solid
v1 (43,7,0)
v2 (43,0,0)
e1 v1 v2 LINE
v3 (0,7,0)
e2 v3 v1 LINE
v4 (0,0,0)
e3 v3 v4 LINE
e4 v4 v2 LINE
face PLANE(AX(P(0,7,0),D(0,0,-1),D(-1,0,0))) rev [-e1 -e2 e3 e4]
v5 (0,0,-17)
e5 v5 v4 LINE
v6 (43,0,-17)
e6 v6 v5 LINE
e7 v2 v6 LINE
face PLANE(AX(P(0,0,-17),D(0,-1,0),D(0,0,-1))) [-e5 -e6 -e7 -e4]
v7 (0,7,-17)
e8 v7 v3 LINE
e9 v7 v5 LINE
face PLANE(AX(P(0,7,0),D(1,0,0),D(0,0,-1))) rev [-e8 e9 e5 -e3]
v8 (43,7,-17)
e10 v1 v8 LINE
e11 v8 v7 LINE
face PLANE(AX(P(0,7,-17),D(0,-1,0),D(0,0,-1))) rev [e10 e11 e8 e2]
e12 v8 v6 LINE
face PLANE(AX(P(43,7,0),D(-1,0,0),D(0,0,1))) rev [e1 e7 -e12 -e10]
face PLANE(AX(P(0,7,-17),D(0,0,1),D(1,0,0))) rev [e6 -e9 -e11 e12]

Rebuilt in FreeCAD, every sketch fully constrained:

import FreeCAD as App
import Part
import Sketcher
Q = App.Units.Quantity

doc = App.newDocument("Part")
body = doc.addObject("PartDesign::Body", "Body")

sketch1 = body.newObject("Sketcher::SketchObject", "Sketch")
sketch1.AttachmentSupport = (doc.getObject("XZ_Plane"), [""])
sketch1.MapMode = "FlatFace"
sketch1.addGeometry([
    Part.LineSegment(App.Vector(0, -17, 0), App.Vector(0, 0, 0)),
    Part.LineSegment(App.Vector(0, 0, 0), App.Vector(43, 0, 0)),
    Part.LineSegment(App.Vector(43, 0, 0), App.Vector(43, -17, 0)),
    Part.LineSegment(App.Vector(43, -17, 0), App.Vector(0, -17, 0)),
], False)
sketch1.addConstraint([
    Sketcher.Constraint("Coincident", 0, 2, 1, 1),
    Sketcher.Constraint("Coincident", 1, 2, 2, 1),
    Sketcher.Constraint("Coincident", 2, 2, 3, 1),
    Sketcher.Constraint("Coincident", 3, 2, 0, 1),
    Sketcher.Constraint("Vertical", 0),
    Sketcher.Constraint("Horizontal", 1),
    Sketcher.Constraint("Vertical", 2),
    Sketcher.Constraint("Horizontal", 3),
    Sketcher.Constraint("Coincident", 0, 2, -1, 1),
    Sketcher.Constraint("DistanceX", 1, 1, 1, 2, Q("43 mm")),
    Sketcher.Constraint("DistanceY", 0, 1, 0, 2, Q("17 mm")),
])
pad1 = body.newObject("PartDesign::Pad", "Pad")
pad1.Profile = sketch1
pad1.Length = 7
pad1.Reversed = True

doc.recompute()
